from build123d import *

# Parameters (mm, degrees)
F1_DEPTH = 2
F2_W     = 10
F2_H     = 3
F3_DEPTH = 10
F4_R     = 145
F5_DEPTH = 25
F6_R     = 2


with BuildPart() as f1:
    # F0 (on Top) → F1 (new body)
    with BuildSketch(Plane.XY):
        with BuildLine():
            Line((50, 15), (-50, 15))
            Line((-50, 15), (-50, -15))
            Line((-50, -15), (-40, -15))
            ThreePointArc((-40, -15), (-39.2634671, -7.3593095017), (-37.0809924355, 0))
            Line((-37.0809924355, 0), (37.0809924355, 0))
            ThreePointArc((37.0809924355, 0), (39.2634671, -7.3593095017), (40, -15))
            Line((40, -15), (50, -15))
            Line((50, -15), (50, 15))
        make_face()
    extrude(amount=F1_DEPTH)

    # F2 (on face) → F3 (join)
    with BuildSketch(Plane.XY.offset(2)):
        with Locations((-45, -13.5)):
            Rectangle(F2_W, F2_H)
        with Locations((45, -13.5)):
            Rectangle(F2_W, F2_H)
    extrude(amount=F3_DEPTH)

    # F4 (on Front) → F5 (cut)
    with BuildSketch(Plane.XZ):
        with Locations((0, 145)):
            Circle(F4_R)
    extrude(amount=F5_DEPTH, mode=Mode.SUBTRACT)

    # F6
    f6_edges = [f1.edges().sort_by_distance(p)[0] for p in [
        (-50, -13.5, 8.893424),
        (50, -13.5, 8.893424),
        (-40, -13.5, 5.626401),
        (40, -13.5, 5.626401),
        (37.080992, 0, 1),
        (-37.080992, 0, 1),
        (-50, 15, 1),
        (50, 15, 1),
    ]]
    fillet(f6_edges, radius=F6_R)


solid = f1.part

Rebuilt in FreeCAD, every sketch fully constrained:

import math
import FreeCAD as App
import Part
import Sketcher
Q = App.Units.Quantity


def edges_at(feature, points):
    """Names of the edges that pass closest to the given points."""
    edges = feature.Shape.Edges
    near = lambda p: min(range(len(edges)), key=lambda i: edges[i].distToShape(Part.Vertex(*p))[0])
    return sorted({f"Edge{near(p) + 1}" for p in points})

doc = App.newDocument("Part")
body = doc.addObject("PartDesign::Body", "Body")

# Sketch on XY plane
sketch1 = doc.addObject("Sketcher::SketchObject", "Sketch")
body.addObject(sketch1)
sketch1.AttachmentSupport = (doc.XY_Plane, [""])
sketch1.MapMode = "FlatFace"
sketch1.addGeometry([
    Part.LineSegment(App.Vector(50, 15, 0), App.Vector(-50, 15, 0)),  # 0
    Part.LineSegment(App.Vector(-50, 15, 0), App.Vector(-50, -15, 0)),  # 1
    Part.LineSegment(App.Vector(-50, -15, 0), App.Vector(-40, -15, 0)),  # 2
    Part.ArcOfCircle(Part.Circle(App.Vector(0, -15, 0), App.Vector(0, 0, 1), 40), math.radians(157.975687), math.radians(180)),  # 3
    Part.LineSegment(App.Vector(-37.080992, 0, 0), App.Vector(37.080992, 0, 0)),  # 4
    Part.ArcOfCircle(Part.Circle(App.Vector(0, -15, 0), App.Vector(0, 0, 1), 40), math.radians(0), math.radians(22.024313)),  # 5
    Part.LineSegment(App.Vector(40, -15, 0), App.Vector(50, -15, 0)),  # 6
    Part.LineSegment(App.Vector(50, -15, 0), App.Vector(50, 15, 0)),  # 7
], False)
sketch1.addConstraint([
    Sketcher.Constraint("Coincident", 0, 2, 1, 1),
    Sketcher.Constraint("Coincident", 1, 2, 2, 1),
    Sketcher.Constraint("Coincident", 2, 2, 3, 2),
    Sketcher.Constraint("Coincident", 3, 1, 4, 1),
    Sketcher.Constraint("Coincident", 4, 2, 5, 2),
    Sketcher.Constraint("Coincident", 5, 1, 6, 1),
    Sketcher.Constraint("Coincident", 6, 2, 7, 1),
    Sketcher.Constraint("Coincident", 7, 2, 0, 1),
    Sketcher.Constraint("Horizontal", 0),
    Sketcher.Constraint("Vertical", 1),
    Sketcher.Constraint("Horizontal", 2),
    Sketcher.Constraint("Horizontal", 4),
    Sketcher.Constraint("Horizontal", 6),
    Sketcher.Constraint("Vertical", 7),
    Sketcher.Constraint("Coincident", 5, 3, 3, 3),
    Sketcher.Constraint("Equal", 3, 5),
    Sketcher.Constraint("Symmetric", 3, 1, 4, 2, -1, 1),
    Sketcher.Constraint("Symmetric", 0, 2, 6, 2, -1, 1),
    Sketcher.Constraint("Horizontal", 5, 3, 1, 2),
    Sketcher.Constraint("Horizontal", 2, 2, 5, 1),
    Sketcher.Constraint("Radius", 3, Q("40 mm")),
    Sketcher.Constraint("DistanceX", 0, 2, 0, 1, Q("100 mm")),
    Sketcher.Constraint("DistanceY", 1, 2, 1, 1, Q("30 mm")),
])
pad1 = doc.addObject("PartDesign::Pad", "Pad")
body.addObject(pad1)
pad1.Profile = sketch1
pad1.Length = 2

# Sketch on XY plane
sketch2 = doc.addObject("Sketcher::SketchObject", "Sketch001")
body.addObject(sketch2)
sketch2.AttachmentSupport = (doc.XY_Plane, [""])
sketch2.MapMode = "FlatFace"
sketch2.AttachmentOffset = App.Placement(App.Vector(0, 0, 2), App.Rotation())
sketch2.addGeometry([
    Part.LineSegment(App.Vector(-50, -12, 0), App.Vector(-50, -15, 0)),  # 0
    Part.LineSegment(App.Vector(-50, -15, 0), App.Vector(-40, -15, 0)),  # 1
    Part.LineSegment(App.Vector(-40, -15, 0), App.Vector(-40, -12, 0)),  # 2
    Part.LineSegment(App.Vector(-40, -12, 0), App.Vector(-50, -12, 0)),  # 3
    Part.LineSegment(App.Vector(40, -12, 0), App.Vector(40, -15, 0)),  # 4
    Part.LineSegment(App.Vector(40, -15, 0), App.Vector(50, -15, 0)),  # 5
    Part.LineSegment(App.Vector(50, -15, 0), App.Vector(50, -12, 0)),  # 6
    Part.LineSegment(App.Vector(50, -12, 0), App.Vector(40, -12, 0)),  # 7
], False)
sketch2.addConstraint([
    Sketcher.Constraint("Coincident", 0, 2, 1, 1),
    Sketcher.Constraint("Coincident", 1, 2, 2, 1),
    Sketcher.Constraint("Coincident", 2, 2, 3, 1),
    Sketcher.Constraint("Coincident", 3, 2, 0, 1),
    Sketcher.Constraint("Coincident", 4, 2, 5, 1),
    Sketcher.Constraint("Coincident", 5, 2, 6, 1),
    Sketcher.Constraint("Coincident", 6, 2, 7, 1),
    Sketcher.Constraint("Coincident", 7, 2, 4, 1),
    Sketcher.Constraint("Vertical", 0),
    Sketcher.Constraint("Horizontal", 1),
    Sketcher.Constraint("Vertical", 2),
    Sketcher.Constraint("Horizontal", 3),
    Sketcher.Constraint("Vertical", 4),
    Sketcher.Constraint("Horizontal", 5),
    Sketcher.Constraint("Vertical", 6),
    Sketcher.Constraint("Horizontal", 7),
    Sketcher.Constraint("Symmetric", 1, 2, 4, 2, -2),
    Sketcher.Constraint("Symmetric", 3, 2, 6, 2, -2),
    Sketcher.Constraint("DistanceX", 1, 1, 1, 2, Q("10 mm")),
    Sketcher.Constraint("DistanceY", 0, 2, 0, 1, Q("3 mm")),
    Sketcher.Constraint("DistanceX", 0, 2, -1, 1, Q("50 mm")),
    Sketcher.Constraint("DistanceY", 0, 2, -1, 1, Q("15 mm")),
])
pad2 = doc.addObject("PartDesign::Pad", "Pad001")
body.addObject(pad2)
pad2.Profile = sketch2
pad2.Length = 10

# Sketch on XZ plane
sketch3 = doc.addObject("Sketcher::SketchObject", "Sketch002")
body.addObject(sketch3)
sketch3.AttachmentSupport = (doc.XZ_Plane, [""])
sketch3.MapMode = "FlatFace"
sketch3.addGeometry(Part.Circle(App.Vector(0, 145, 0), App.Vector(0, 0, 1), 145), False)
sketch3.addConstraint([
    Sketcher.Constraint("PointOnObject", 0, 3, -2),
    Sketcher.Constraint("Diameter", 0, Q("290 mm")),
    Sketcher.Constraint("DistanceY", -1, 1, 0, 3, Q("145 mm")),
])
pocket1 = doc.addObject("PartDesign::Pocket", "Pocket")
body.addObject(pocket1)
pocket1.Profile = sketch3
pocket1.Length = 25
pocket1.Reversed = True
doc.recompute()

fillet = doc.addObject("PartDesign::Fillet", "Fillet")
body.addObject(fillet)
fillet.Base = (pocket1, edges_at(pocket1, [
    (-50, -13.5, 8.893),
    (50, -13.5, 8.893),
    (-40, -13.5, 5.626),
    (40, -13.5, 5.626),
    (37.081, 0, 1),
    (-37.081, 0, 1),
    (-50, 15, 1),
    (50, 15, 1),
]))
fillet.Radius = 2

doc.recompute()
